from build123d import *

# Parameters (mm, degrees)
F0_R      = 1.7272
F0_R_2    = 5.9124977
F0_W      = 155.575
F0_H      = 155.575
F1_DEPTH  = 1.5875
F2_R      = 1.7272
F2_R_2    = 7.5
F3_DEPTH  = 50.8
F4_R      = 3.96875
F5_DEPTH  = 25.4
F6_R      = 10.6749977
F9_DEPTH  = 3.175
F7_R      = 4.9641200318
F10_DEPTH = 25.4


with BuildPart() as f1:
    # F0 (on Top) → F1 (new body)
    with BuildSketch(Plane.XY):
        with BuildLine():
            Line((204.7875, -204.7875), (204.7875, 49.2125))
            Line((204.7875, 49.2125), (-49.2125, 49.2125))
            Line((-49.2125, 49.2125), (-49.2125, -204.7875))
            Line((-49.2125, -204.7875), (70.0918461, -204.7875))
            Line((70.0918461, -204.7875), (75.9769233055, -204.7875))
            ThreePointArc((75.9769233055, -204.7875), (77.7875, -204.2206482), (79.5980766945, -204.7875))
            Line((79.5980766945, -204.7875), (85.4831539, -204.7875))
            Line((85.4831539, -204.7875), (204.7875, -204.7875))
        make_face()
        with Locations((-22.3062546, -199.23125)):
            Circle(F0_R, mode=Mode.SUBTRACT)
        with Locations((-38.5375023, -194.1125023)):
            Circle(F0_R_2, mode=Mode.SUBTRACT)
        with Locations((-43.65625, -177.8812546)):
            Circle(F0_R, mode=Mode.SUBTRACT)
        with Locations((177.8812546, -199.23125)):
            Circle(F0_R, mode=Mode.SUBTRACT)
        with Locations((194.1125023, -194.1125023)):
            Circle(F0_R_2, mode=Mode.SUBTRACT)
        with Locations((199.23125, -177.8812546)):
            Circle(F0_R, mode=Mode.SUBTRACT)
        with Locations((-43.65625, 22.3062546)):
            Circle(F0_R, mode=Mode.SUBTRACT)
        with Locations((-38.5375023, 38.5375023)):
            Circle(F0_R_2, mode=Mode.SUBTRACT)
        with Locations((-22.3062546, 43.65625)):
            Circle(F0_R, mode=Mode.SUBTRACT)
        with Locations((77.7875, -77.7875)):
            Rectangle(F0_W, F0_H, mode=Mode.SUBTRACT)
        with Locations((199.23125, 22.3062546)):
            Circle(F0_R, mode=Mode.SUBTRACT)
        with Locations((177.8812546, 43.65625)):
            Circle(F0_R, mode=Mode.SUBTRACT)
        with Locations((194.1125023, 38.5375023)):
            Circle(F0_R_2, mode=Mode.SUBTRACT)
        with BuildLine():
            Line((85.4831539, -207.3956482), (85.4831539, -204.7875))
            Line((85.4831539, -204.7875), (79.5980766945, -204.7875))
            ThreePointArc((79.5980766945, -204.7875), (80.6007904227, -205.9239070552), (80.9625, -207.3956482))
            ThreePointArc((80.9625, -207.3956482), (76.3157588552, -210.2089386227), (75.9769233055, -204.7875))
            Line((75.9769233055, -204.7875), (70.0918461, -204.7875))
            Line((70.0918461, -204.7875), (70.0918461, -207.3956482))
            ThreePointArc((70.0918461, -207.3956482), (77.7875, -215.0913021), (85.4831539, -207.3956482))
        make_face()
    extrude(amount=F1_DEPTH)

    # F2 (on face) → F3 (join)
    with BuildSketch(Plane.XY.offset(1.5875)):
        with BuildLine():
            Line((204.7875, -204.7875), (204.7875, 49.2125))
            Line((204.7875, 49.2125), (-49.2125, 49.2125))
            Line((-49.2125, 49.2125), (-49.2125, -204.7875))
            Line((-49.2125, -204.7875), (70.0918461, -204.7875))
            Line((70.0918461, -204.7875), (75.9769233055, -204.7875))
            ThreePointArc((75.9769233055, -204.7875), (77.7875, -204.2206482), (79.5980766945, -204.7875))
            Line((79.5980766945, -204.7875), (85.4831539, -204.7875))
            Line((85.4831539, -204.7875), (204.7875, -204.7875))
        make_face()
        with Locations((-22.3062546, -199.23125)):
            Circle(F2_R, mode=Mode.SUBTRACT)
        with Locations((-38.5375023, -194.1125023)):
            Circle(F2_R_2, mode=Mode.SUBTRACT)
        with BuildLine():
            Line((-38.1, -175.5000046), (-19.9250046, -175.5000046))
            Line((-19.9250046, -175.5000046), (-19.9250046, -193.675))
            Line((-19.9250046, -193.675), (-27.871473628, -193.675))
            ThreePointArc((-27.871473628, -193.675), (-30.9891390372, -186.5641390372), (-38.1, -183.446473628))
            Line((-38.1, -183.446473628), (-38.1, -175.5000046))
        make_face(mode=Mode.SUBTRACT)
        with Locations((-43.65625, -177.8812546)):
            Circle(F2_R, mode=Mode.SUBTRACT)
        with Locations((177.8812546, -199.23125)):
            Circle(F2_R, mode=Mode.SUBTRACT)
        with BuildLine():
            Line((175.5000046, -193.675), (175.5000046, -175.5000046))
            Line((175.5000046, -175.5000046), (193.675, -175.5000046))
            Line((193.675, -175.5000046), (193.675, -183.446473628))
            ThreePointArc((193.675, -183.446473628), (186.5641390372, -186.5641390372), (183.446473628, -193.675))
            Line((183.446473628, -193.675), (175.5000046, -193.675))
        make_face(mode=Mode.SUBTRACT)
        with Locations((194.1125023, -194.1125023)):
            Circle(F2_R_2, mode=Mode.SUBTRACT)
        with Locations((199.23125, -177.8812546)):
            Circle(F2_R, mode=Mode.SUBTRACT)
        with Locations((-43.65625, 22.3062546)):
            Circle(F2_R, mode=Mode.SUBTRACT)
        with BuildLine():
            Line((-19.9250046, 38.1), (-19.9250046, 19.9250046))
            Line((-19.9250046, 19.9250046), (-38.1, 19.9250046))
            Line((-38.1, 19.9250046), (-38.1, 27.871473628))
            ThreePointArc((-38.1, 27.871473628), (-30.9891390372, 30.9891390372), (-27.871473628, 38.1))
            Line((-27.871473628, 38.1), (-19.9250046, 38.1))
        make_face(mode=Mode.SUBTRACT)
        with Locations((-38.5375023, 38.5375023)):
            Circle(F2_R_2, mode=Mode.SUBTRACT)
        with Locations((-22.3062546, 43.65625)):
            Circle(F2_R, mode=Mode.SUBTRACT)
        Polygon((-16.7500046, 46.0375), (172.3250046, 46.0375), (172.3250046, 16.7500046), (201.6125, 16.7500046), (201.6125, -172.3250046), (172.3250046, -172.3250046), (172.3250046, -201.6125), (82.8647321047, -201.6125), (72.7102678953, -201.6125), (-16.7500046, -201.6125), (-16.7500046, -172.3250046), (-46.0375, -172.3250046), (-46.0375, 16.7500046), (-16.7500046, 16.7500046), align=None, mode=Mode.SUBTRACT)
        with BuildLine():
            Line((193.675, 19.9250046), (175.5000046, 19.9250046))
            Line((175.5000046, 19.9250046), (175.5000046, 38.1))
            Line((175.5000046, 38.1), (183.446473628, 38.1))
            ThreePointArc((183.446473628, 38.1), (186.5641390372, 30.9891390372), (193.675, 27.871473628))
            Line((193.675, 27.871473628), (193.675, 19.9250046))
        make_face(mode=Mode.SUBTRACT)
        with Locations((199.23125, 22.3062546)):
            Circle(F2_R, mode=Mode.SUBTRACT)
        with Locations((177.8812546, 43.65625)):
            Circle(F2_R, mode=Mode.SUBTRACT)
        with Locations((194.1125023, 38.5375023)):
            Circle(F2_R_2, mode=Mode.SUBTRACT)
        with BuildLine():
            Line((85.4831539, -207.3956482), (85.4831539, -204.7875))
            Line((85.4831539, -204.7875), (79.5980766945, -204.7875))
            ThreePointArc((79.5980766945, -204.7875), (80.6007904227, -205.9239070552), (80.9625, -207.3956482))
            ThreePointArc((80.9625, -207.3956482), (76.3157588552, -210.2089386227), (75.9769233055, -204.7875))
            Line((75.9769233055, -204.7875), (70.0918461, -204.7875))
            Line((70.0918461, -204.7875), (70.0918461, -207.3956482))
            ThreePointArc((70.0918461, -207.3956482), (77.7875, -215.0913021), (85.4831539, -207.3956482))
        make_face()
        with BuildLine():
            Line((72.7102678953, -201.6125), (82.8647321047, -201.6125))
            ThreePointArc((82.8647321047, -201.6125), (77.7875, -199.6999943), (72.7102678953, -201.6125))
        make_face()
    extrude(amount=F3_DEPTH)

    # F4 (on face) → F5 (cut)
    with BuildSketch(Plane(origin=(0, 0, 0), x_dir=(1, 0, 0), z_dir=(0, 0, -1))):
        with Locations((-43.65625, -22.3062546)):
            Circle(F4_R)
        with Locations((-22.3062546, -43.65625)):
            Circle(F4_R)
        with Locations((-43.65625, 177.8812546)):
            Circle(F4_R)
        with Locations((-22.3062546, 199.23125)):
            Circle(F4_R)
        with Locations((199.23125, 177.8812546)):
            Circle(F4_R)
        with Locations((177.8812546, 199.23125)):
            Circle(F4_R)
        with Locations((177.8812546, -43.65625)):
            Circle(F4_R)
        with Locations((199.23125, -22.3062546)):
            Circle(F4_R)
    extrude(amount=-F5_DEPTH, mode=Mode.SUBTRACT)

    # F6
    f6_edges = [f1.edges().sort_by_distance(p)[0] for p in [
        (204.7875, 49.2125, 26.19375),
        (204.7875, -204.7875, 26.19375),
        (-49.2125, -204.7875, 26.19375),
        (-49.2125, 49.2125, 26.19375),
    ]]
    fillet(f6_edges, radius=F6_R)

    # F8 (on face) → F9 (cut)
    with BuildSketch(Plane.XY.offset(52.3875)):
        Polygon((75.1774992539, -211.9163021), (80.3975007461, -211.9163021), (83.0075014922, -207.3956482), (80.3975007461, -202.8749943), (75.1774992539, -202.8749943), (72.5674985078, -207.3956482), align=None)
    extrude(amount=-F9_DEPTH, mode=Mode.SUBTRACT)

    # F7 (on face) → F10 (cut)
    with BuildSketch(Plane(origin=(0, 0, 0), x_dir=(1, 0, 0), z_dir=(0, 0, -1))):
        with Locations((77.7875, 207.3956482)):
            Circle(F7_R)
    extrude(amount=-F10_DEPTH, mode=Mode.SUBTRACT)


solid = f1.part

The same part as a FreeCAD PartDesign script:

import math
import FreeCAD as App
import Part
import Sketcher
Q = App.Units.Quantity


def edges_at(feature, points):
    """Names of the edges that pass closest to the given points."""
    edges = feature.Shape.Edges
    near = lambda p: min(range(len(edges)), key=lambda i: edges[i].distToShape(Part.Vertex(*p))[0])
    return sorted({f"Edge{near(p) + 1}" for p in points})

doc = App.newDocument("Part")
body = doc.addObject("PartDesign::Body", "Body")

# Sketch on XY plane
sketch1 = doc.addObject("Sketcher::SketchObject", "Sketch")
body.addObject(sketch1)
sketch1.AttachmentSupport = (doc.XY_Plane, [""])
sketch1.MapMode = "FlatFace"
sketch1.addGeometry(Part.LineSegment(App.Vector(204.7875, -204.7875, 0), App.Vector(204.7875, 49.2125, 0)), False)
sketch1.addGeometry(Part.LineSegment(App.Vector(204.7875, 49.2125, 0), App.Vector(-49.2125, 49.2125, 0)), False)
sketch1.addGeometry(Part.LineSegment(App.Vector(-49.2125, 49.2125, 0), App.Vector(-49.2125, -204.7875, 0)), False)
sketch1.addGeometry(Part.LineSegment(App.Vector(-49.2125, -204.7875, 0), App.Vector(70.091846, -204.7875, 0)), False)
sketch1.addGeometry(Part.LineSegment(App.Vector(70.091846, -204.7875, 0), App.Vector(70.091846, -207.395648, 0)), False)
sketch1.addGeometry(Part.ArcOfCircle(Part.Circle(App.Vector(77.7875, -207.395648, 0), App.Vector(0, 0, 1), 7.695654), math.radians(180), math.radians(360)), False)
sketch1.addGeometry(Part.LineSegment(App.Vector(85.483154, -207.395648, 0), App.Vector(85.483154, -204.7875, 0)), False)
sketch1.addGeometry(Part.LineSegment(App.Vector(85.483154, -204.7875, 0), App.Vector(204.7875, -204.7875, 0)), False)
sketch1.addGeometry(Part.ArcOfCircle(Part.Circle(App.Vector(77.7875, -207.395648, 0), App.Vector(0, 0, 1), 3.175), math.radians(55.231615), math.radians(124.768385)), False)
sketch1.addGeometry(Part.ArcOfCircle(Part.Circle(App.Vector(77.7875, -207.395648, 0), App.Vector(0, 0, 1), 3.175), math.radians(0), math.radians(55.231615)), False)
sketch1.addGeometry(Part.ArcOfCircle(Part.Circle(App.Vector(77.7875, -207.395648, 0), App.Vector(0, 0, 1), 3.175), math.radians(124.768385), math.radians(360)), False)
sketch1.addGeometry(Part.Circle(App.Vector(-38.537502, -194.112502, 0), App.Vector(0, 0, 1), 5.912498), False)
sketch1.addGeometry(Part.Circle(App.Vector(-22.306255, -199.23125, 0), App.Vector(0, 0, 1), 1.7272), False)
sketch1.addGeometry(Part.Circle(App.Vector(-43.65625, -177.881255, 0), App.Vector(0, 0, 1), 1.7272), False)
sketch1.addGeometry(Part.Circle(App.Vector(177.881255, -199.23125, 0), App.Vector(0, 0, 1), 1.7272), False)
sketch1.addGeometry(Part.Circle(App.Vector(194.112502, -194.112502, 0), App.Vector(0, 0, 1), 5.912498), False)
sketch1.addGeometry(Part.Circle(App.Vector(199.23125, -177.881255, 0), App.Vector(0, 0, 1), 1.7272), False)
sketch1.addGeometry(Part.LineSegment(App.Vector(155.575, -155.575, 0), App.Vector(0, -155.575, 0)), False)
sketch1.addGeometry(Part.LineSegment(App.Vector(0, -155.575, 0), App.Vector(0, 0, 0)), False)
sketch1.addGeometry(Part.LineSegment(App.Vector(0, 0, 0), App.Vector(155.575, 0, 0)), False)
sketch1.addGeometry(Part.LineSegment(App.Vector(155.575, 0, 0), App.Vector(155.575, -155.575, 0)), False)
sketch1.addGeometry(Part.Circle(App.Vector(-43.65625, 22.306255, 0), App.Vector(0, 0, 1), 1.7272), False)
sketch1.addGeometry(Part.Circle(App.Vector(-38.537502, 38.537502, 0), App.Vector(0, 0, 1), 5.912498), False)
sketch1.addGeometry(Part.Circle(App.Vector(-22.306255, 43.65625, 0), App.Vector(0, 0, 1), 1.7272), False)
sketch1.addGeometry(Part.Circle(App.Vector(199.23125, 22.306255, 0), App.Vector(0, 0, 1), 1.7272), False)
sketch1.addGeometry(Part.Circle(App.Vector(177.881255, 43.65625, 0), App.Vector(0, 0, 1), 1.7272), False)
sketch1.addGeometry(Part.Circle(App.Vector(194.112502, 38.537502, 0), App.Vector(0, 0, 1), 5.912498), False)
sketch1.addConstraint(Sketcher.Constraint("Coincident", 0, 2, 1, 1))
sketch1.addConstraint(Sketcher.Constraint("Coincident", 1, 2, 2, 1))
sketch1.addConstraint(Sketcher.Constraint("Coincident", 2, 2, 3, 1))
sketch1.addConstraint(Sketcher.Constraint("Coincident", 3, 2, 4, 1))
sketch1.addConstraint(Sketcher.Constraint("Tangent", 4, 2, 5, 1))
sketch1.addConstraint(Sketcher.Constraint("Tangent", 5, 2, 6, 1))
sketch1.addConstraint(Sketcher.Constraint("Coincident", 6, 2, 7, 1))
sketch1.addConstraint(Sketcher.Constraint("Coincident", 7, 2, 0, 1))
sketch1.addConstraint(Sketcher.Constraint("Tangent", 8, 1, 9, 2))
sketch1.addConstraint(Sketcher.Constraint("Tangent", 9, 1, 10, 2))
sketch1.addConstraint(Sketcher.Constraint("Tangent", 10, 1, 8, 2))
sketch1.addConstraint(Sketcher.Constraint("Coincident", 17, 2, 18, 1))
sketch1.addConstraint(Sketcher.Constraint("Coincident", 18, 2, 19, 1))
sketch1.addConstraint(Sketcher.Constraint("Coincident", 19, 2, 20, 1))
sketch1.addConstraint(Sketcher.Constraint("Coincident", 20, 2, 17, 1))
sketch1.addConstraint(Sketcher.Constraint("Vertical", 0))
sketch1.addConstraint(Sketcher.Constraint("Horizontal", 1))
sketch1.addConstraint(Sketcher.Constraint("Vertical", 2))
sketch1.addConstraint(Sketcher.Constraint("Horizontal", 3))
sketch1.addConstraint(Sketcher.Constraint("Vertical", 4))
sketch1.addConstraint(Sketcher.Constraint("Vertical", 6))
sketch1.addConstraint(Sketcher.Constraint("Horizontal", 7))
sketch1.addConstraint(Sketcher.Constraint("Horizontal", 17))
sketch1.addConstraint(Sketcher.Constraint("Vertical", 18))
sketch1.addConstraint(Sketcher.Constraint("Horizontal", 19))
sketch1.addConstraint(Sketcher.Constraint("Vertical", 20))
sketch1.addConstraint(Sketcher.Constraint("Coincident", 18, 2, -1, 1))
sketch1.addConstraint(Sketcher.Constraint("Coincident", 8, 3, 5, 3))
sketch1.addConstraint(Sketcher.Constraint("Equal", 12, 13))
sketch1.addConstraint(Sketcher.Constraint("Equal", 13, 14))
sketch1.addConstraint(Sketcher.Constraint("Equal", 11, 15))
sketch1.addConstraint(Sketcher.Constraint("Equal", 14, 16))
sketch1.addConstraint(Sketcher.Constraint("Equal", 16, 21))
sketch1.addConstraint(Sketcher.Constraint("Equal", 15, 22))
sketch1.addConstraint(Sketcher.Constraint("Equal", 21, 23))
sketch1.addConstraint(Sketcher.Constraint("Equal", 23, 24))
sketch1.addConstraint(Sketcher.Constraint("Equal", 24, 25))
sketch1.addConstraint(Sketcher.Constraint("Equal", 22, 26))
sketch1.addConstraint(Sketcher.Constraint("Horizontal", 12, 3, 14, 3))
sketch1.addConstraint(Sketcher.Constraint("Horizontal", 11, 3, 15, 3))
sketch1.addConstraint(Sketcher.Constraint("Horizontal", 13, 3, 16, 3))
sketch1.addConstraint(Sketcher.Constraint("Horizontal", 21, 3, 24, 3))
sketch1.addConstraint(Sketcher.Constraint("Horizontal", 23, 3, 25, 3))
sketch1.addConstraint(Sketcher.Constraint("Horizontal", 22, 3, 26, 3))
sketch1.addConstraint(Sketcher.Constraint("Horizontal", 3, 2, 6, 2))
sketch1.addConstraint(Sketcher.Constraint("Horizontal", 7, 2, 8, 1))
sketch1.addConstraint(Sketcher.Constraint("Horizontal", 5, 2, 9, 1))
sketch1.addConstraint(Sketcher.Constraint("Horizontal", 8, 1, 10, 1))
sketch1.addConstraint(Sketcher.Constraint("Vertical", 13, 3, 21, 3))
sketch1.addConstraint(Sketcher.Constraint("Vertical", 11, 3, 22, 3))
sketch1.addConstraint(Sketcher.Constraint("Vertical", 12, 3, 23, 3))
sketch1.addConstraint(Sketcher.Constraint("Vertical", 16, 3, 24, 3))
sketch1.addConstraint(Sketcher.Constraint("Vertical", 14, 3, 25, 3))
sketch1.addConstraint(Sketcher.Constraint("Vertical", 15, 3, 26, 3))
sketch1.addConstraint(Sketcher.Constraint("Equal", 3, 7))
sketch1.addConstraint(Sketcher.Constraint("Equal", 1, 0))
sketch1.addConstraint(Sketcher.Constraint("Equal", 19, 18))
sketch1.addConstraint(Sketcher.Constraint("DistanceX", 1, 2, 1, 1, Q("10 in")))
sketch1.addConstraint(Sketcher.Constraint("Diameter", 12, Q("0.136 in")))
sketch1.addConstraint(Sketcher.Constraint("Radius", 8, Q("0.125 in")))
sketch1.addConstraint(Sketcher.Constraint("DistanceX", 17, 2, 17, 1, Q("6.125 in")))
sketch1.addConstraint(Sketcher.Constraint("DistanceX", -1, 1, 5, 3, Q("3.0625 in")))
sketch1.addConstraint(Sketcher.Constraint("DistanceY", 12, 3, -1, 1, Q("7.84375 in")))
sketch1.addConstraint(Sketcher.Constraint("DistanceX", 13, 3, -1, 1, Q("1.71875 in")))
sketch1.addConstraint(Sketcher.Constraint("DistanceX", -1, 1, 16, 3, Q("7.84375 in")))
sketch1.addConstraint(Sketcher.Constraint("DistanceY", -1, 1, 23, 3, Q("1.71875 in")))
sketch1.addConstraint(Sketcher.Constraint("DistanceY", -1, 1, 0, 2, Q("1.9375 in")))
sketch1.addConstraint(Sketcher.Constraint("Diameter", 11, 11.824995))
sketch1.addConstraint(Sketcher.Constraint("Radius", 5, 7.695654))
sketch1.addConstraint(Sketcher.Constraint("DistanceY", 4, 2, 4, 1, 2.608148))
sketch1.addConstraint(Sketcher.Constraint("DistanceX", 12, 3, 3, 2, 92.398101))
sketch1.addConstraint(Sketcher.Constraint("DistanceX", 12, 3, 14, 3, 200.187509))
sketch1.addConstraint(Sketcher.Constraint("DistanceY", 13, 3, 21, 3, 200.187509))
sketch1.addConstraint(Sketcher.Constraint("DistanceY", 5, 3, 22, 3, 245.933151))
sketch1.addConstraint(Sketcher.Constraint("DistanceX", 11, 3, -1, 1, 38.537502))
sketch1.addConstraint(Sketcher.Constraint("DistanceY", 11, 3, -1, 1, 194.112502))
sketch1.addConstraint(Sketcher.Constraint("DistanceY", 13, 3, -1, 1, 177.881255))
sketch1.addConstraint(Sketcher.Constraint("DistanceX", -1, 1, 15, 3, 194.112502))
pad1 = doc.addObject("PartDesign::Pad", "Pad")
body.addObject(pad1)
pad1.Profile = sketch1
pad1.Length = Q("0.0625 in")

# Sketch on XY plane
sketch2 = doc.addObject("Sketcher::SketchObject", "Sketch001")
body.addObject(sketch2)
sketch2.AttachmentSupport = (doc.XY_Plane, [""])
sketch2.MapMode = "FlatFace"
sketch2.AttachmentOffset = App.Placement(App.Vector(0, 0, 0.0625 * 25.4), App.Rotation())
sketch2.addGeometry(Part.LineSegment(App.Vector(204.7875, -204.7875, 0), App.Vector(204.7875, 49.2125, 0)), False)
sketch2.addGeometry(Part.LineSegment(App.Vector(204.7875, 49.2125, 0), App.Vector(-49.2125, 49.2125, 0)), False)
sketch2.addGeometry(Part.LineSegment(App.Vector(-49.2125, 49.2125, 0), App.Vector(-49.2125, -204.7875, 0)), False)
sketch2.addGeometry(Part.LineSegment(App.Vector(-49.2125, -204.7875, 0), App.Vector(70.091846, -204.7875, 0)), False)
sketch2.addGeometry(Part.LineSegment(App.Vector(70.091846, -204.7875, 0), App.Vector(70.091846, -207.395648, 0)), False)
sketch2.addGeometry(Part.ArcOfCircle(Part.Circle(App.Vector(77.7875, -207.395648, 0), App.Vector(0, 0, 1), 7.695654), math.radians(180), math.radians(360)), False)
sketch2.addGeometry(Part.LineSegment(App.Vector(85.483154, -207.395648, 0), App.Vector(85.483154, -204.7875, 0)), False)
sketch2.addGeometry(Part.LineSegment(App.Vector(85.483154, -204.7875, 0), App.Vector(204.7875, -204.7875, 0)), False)
sketch2.addGeometry(Part.ArcOfCircle(Part.Circle(App.Vector(77.7875, -207.395648, 0), App.Vector(0, 0, 1), 3.175), math.radians(55.231615), math.radians(124.768385)), False)
sketch2.addGeometry(Part.ArcOfCircle(Part.Circle(App.Vector(77.7875, -207.395648, 0), App.Vector(0, 0, 1), 3.175), math.radians(0), math.radians(55.231615)), False)
sketch2.addGeometry(Part.ArcOfCircle(Part.Circle(App.Vector(77.7875, -207.395648, 0), App.Vector(0, 0, 1), 3.175), math.radians(124.768385), math.radians(360)), False)
sketch2.addGeometry(Part.Circle(App.Vector(-38.537502, -194.112502, 0), App.Vector(0, 0, 1), 7.5), False)
sketch2.addGeometry(Part.Circle(App.Vector(-22.306255, -199.23125, 0), App.Vector(0, 0, 1), 1.7272), False)
sketch2.addGeometry(Part.Circle(App.Vector(-43.65625, -177.881255, 0), App.Vector(0, 0, 1), 1.7272), False)
sketch2.addGeometry(Part.LineSegment(App.Vector(-38.1, -183.446474, 0), App.Vector(-38.1, -175.500005, 0)), False)
sketch2.addGeometry(Part.LineSegment(App.Vector(-38.1, -175.500005, 0), App.Vector(-19.925005, -175.500005, 0)), False)
sketch2.addGeometry(Part.LineSegment(App.Vector(-19.925005, -175.500005, 0), App.Vector(-19.925005, -193.675, 0)), False)
sketch2.addGeometry(Part.LineSegment(App.Vector(-19.925005, -193.675, 0), App.Vector(-27.871474, -193.675, 0)), False)
sketch2.addGeometry(Part.ArcOfCircle(Part.Circle(App.Vector(-38.537502, -194.112502, 0), App.Vector(0, 0, 1), 10.674998), math.radians(2.348858), math.radians(87.651142)), False)
sketch2.addGeometry(Part.LineSegment(App.Vector(-16.750005, 16.750005, 0), App.Vector(-16.750005, 46.0375, 0)), False)
sketch2.addGeometry(Part.LineSegment(App.Vector(-16.750005, 46.0375, 0), App.Vector(172.325005, 46.0375, 0)), False)
sketch2.addGeometry(Part.LineSegment(App.Vector(172.325005, 46.0375, 0), App.Vector(172.325005, 16.750005, 0)), False)
sketch2.addGeometry(Part.LineSegment(App.Vector(172.325005, 16.750005, 0), App.Vector(201.6125, 16.750005, 0)), False)
sketch2.addGeometry(Part.LineSegment(App.Vector(201.6125, 16.750005, 0), App.Vector(201.6125, -172.325005, 0)), False)
sketch2.addGeometry(Part.LineSegment(App.Vector(201.6125, -172.325005, 0), App.Vector(172.325005, -172.325005, 0)), False)
sketch2.addGeometry(Part.LineSegment(App.Vector(172.325005, -172.325005, 0), App.Vector(172.325005, -201.6125, 0)), False)
sketch2.addGeometry(Part.LineSegment(App.Vector(172.325005, -201.6125, 0), App.Vector(82.864732, -201.6125, 0)), False)
sketch2.addGeometry(Part.ArcOfCircle(Part.Circle(App.Vector(77.7875, -207.395648, 0), App.Vector(0, 0, 1), 7.695654), math.radians(48.718949), math.radians(131.281051)), False)
sketch2.addGeometry(Part.LineSegment(App.Vector(72.710268, -201.6125, 0), App.Vector(-16.750005, -201.6125, 0)), False)
sketch2.addGeometry(Part.LineSegment(App.Vector(-16.750005, -201.6125, 0), App.Vector(-16.750005, -172.325005, 0)), False)
sketch2.addGeometry(Part.LineSegment(App.Vector(-16.750005, -172.325005, 0), App.Vector(-46.0375, -172.325005, 0)), False)
sketch2.addGeometry(Part.LineSegment(App.Vector(-46.0375, -172.325005, 0), App.Vector(-46.0375, 16.750005, 0)), False)
sketch2.addGeometry(Part.LineSegment(App.Vector(-46.0375, 16.750005, 0), App.Vector(-16.750005, 16.750005, 0)), False)
sketch2.addGeometry(Part.Circle(App.Vector(177.881255, -199.23125, 0), App.Vector(0, 0, 1), 1.7272), False)
sketch2.addGeometry(Part.Circle(App.Vector(194.112502, -194.112502, 0), App.Vector(0, 0, 1), 7.5), False)
sketch2.addGeometry(Part.LineSegment(App.Vector(183.446474, -193.675, 0), App.Vector(175.500005, -193.675, 0)), False)
sketch2.addGeometry(Part.LineSegment(App.Vector(175.500005, -193.675, 0), App.Vector(175.500005, -175.500005, 0)), False)
sketch2.addGeometry(Part.LineSegment(App.Vector(175.500005, -175.500005, 0), App.Vector(193.675, -175.500005, 0)), False)
sketch2.addGeometry(Part.LineSegment(App.Vector(193.675, -175.500005, 0), App.Vector(193.675, -183.446474, 0)), False)
sketch2.addGeometry(Part.ArcOfCircle(Part.Circle(App.Vector(194.112502, -194.112502, 0), App.Vector(0, 0, 1), 10.674998), math.radians(92.348858), math.radians(177.651142)), False)
sketch2.addGeometry(Part.Circle(App.Vector(199.23125, -177.881255, 0), App.Vector(0, 0, 1), 1.7272), False)
sketch2.addGeometry(Part.Circle(App.Vector(-43.65625, 22.306255, 0), App.Vector(0, 0, 1), 1.7272), False)
sketch2.addGeometry(Part.LineSegment(App.Vector(-27.871474, 38.1, 0), App.Vector(-19.925005, 38.1, 0)), False)
sketch2.addGeometry(Part.LineSegment(App.Vector(-19.925005, 38.1, 0), App.Vector(-19.925005, 19.925005, 0)), False)
sketch2.addGeometry(Part.LineSegment(App.Vector(-19.925005, 19.925005, 0), App.Vector(-38.1, 19.925005, 0)), False)
sketch2.addGeometry(Part.LineSegment(App.Vector(-38.1, 19.925005, 0), App.Vector(-38.1, 27.871474, 0)), False)
sketch2.addGeometry(Part.ArcOfCircle(Part.Circle(App.Vector(-38.537502, 38.537502, 0), App.Vector(0, 0, 1), 10.674998), math.radians(-87.651142), math.radians(-2.348858)), False)
sketch2.addGeometry(Part.Circle(App.Vector(-38.537502, 38.537502, 0), App.Vector(0, 0, 1), 7.5), False)
sketch2.addGeometry(Part.Circle(App.Vector(-22.306255, 43.65625, 0), App.Vector(0, 0, 1), 1.7272), False)
sketch2.addGeometry(Part.LineSegment(App.Vector(193.675, 27.871474, 0), App.Vector(193.675, 19.925005, 0)), False)
sketch2.addGeometry(Part.LineSegment(App.Vector(193.675, 19.925005, 0), App.Vector(175.500005, 19.925005, 0)), False)
sketch2.addGeometry(Part.LineSegment(App.Vector(175.500005, 19.925005, 0), App.Vector(175.500005, 38.1, 0)), False)
sketch2.addGeometry(Part.LineSegment(App.Vector(175.500005, 38.1, 0), App.Vector(183.446474, 38.1, 0)), False)
sketch2.addGeometry(Part.ArcOfCircle(Part.Circle(App.Vector(194.112502, 38.537502, 0), App.Vector(0, 0, 1), 10.674998), math.radians(-177.651142), math.radians(-92.348858)), False)
sketch2.addGeometry(Part.Circle(App.Vector(199.23125, 22.306255, 0), App.Vector(0, 0, 1), 1.7272), False)
sketch2.addGeometry(Part.Circle(App.Vector(177.881255, 43.65625, 0), App.Vector(0, 0, 1), 1.7272), False)
sketch2.addGeometry(Part.Circle(App.Vector(194.112502, 38.537502, 0), App.Vector(0, 0, 1), 7.5), False)
sketch2.addConstraint(Sketcher.Constraint("Coincident", 0, 2, 1, 1))
sketch2.addConstraint(Sketcher.Constraint("Coincident", 1, 2, 2, 1))
sketch2.addConstraint(Sketcher.Constraint("Coincident", 2, 2, 3, 1))
sketch2.addConstraint(Sketcher.Constraint("Coincident", 3, 2, 4, 1))
sketch2.addConstraint(Sketcher.Constraint("Tangent", 4, 2, 5, 1))
sketch2.addConstraint(Sketcher.Constraint("Tangent", 5, 2, 6, 1))
sketch2.addConstraint(Sketcher.Constraint("Coincident", 6, 2, 7, 1))
sketch2.addConstraint(Sketcher.Constraint("Coincident", 7, 2, 0, 1))
sketch2.addConstraint(Sketcher.Constraint("Tangent", 8, 1, 9, 2))
sketch2.addConstraint(Sketcher.Constraint("Tangent", 9, 1, 10, 2))
sketch2.addConstraint(Sketcher.Constraint("Tangent", 10, 1, 8, 2))
sketch2.addConstraint(Sketcher.Constraint("Coincident", 14, 2, 15, 1))
sketch2.addConstraint(Sketcher.Constraint("Coincident", 15, 2, 16, 1))
sketch2.addConstraint(Sketcher.Constraint("Coincident", 16, 2, 17, 1))
sketch2.addConstraint(Sketcher.Constraint("Coincident", 17, 2, 18, 1))
sketch2.addConstraint(Sketcher.Constraint("Coincident", 18, 2, 14, 1))
sketch2.addConstraint(Sketcher.Constraint("Coincident", 19, 2, 20, 1))
sketch2.addConstraint(Sketcher.Constraint("Coincident", 20, 2, 21, 1))
sketch2.addConstraint(Sketcher.Constraint("Coincident", 21, 2, 22, 1))
sketch2.addConstraint(Sketcher.Constraint("Coincident", 22, 2, 23, 1))
sketch2.addConstraint(Sketcher.Constraint("Coincident", 23, 2, 24, 1))
sketch2.addConstraint(Sketcher.Constraint("Coincident", 24, 2, 25, 1))
sketch2.addConstraint(Sketcher.Constraint("Coincident", 25, 2, 26, 1))
sketch2.addConstraint(Sketcher.Constraint("Coincident", 26, 2, 27, 1))
sketch2.addConstraint(Sketcher.Constraint("Coincident", 27, 2, 28, 1))
sketch2.addConstraint(Sketcher.Constraint("Coincident", 28, 2, 29, 1))
sketch2.addConstraint(Sketcher.Constraint("Coincident", 29, 2, 30, 1))
sketch2.addConstraint(Sketcher.Constraint("Coincident", 30, 2, 31, 1))
sketch2.addConstraint(Sketcher.Constraint("Coincident", 31, 2, 32, 1))
sketch2.addConstraint(Sketcher.Constraint("Coincident", 32, 2, 19, 1))
sketch2.addConstraint(Sketcher.Constraint("Coincident", 35, 2, 36, 1))
sketch2.addConstraint(Sketcher.Constraint("Coincident", 36, 2, 37, 1))
sketch2.addConstraint(Sketcher.Constraint("Coincident", 37, 2, 38, 1))
sketch2.addConstraint(Sketcher.Constraint("Coincident", 38, 2, 39, 1))
sketch2.addConstraint(Sketcher.Constraint("Coincident", 39, 2, 35, 1))
sketch2.addConstraint(Sketcher.Constraint("Coincident", 42, 2, 43, 1))
sketch2.addConstraint(Sketcher.Constraint("Coincident", 43, 2, 44, 1))
sketch2.addConstraint(Sketcher.Constraint("Coincident", 44, 2, 45, 1))
sketch2.addConstraint(Sketcher.Constraint("Coincident", 45, 2, 46, 1))
sketch2.addConstraint(Sketcher.Constraint("Coincident", 46, 2, 42, 1))
sketch2.addConstraint(Sketcher.Constraint("Coincident", 49, 2, 50, 1))
sketch2.addConstraint(Sketcher.Constraint("Coincident", 50, 2, 51, 1))
sketch2.addConstraint(Sketcher.Constraint("Coincident", 51, 2, 52, 1))
sketch2.addConstraint(Sketcher.Constraint("Coincident", 52, 2, 53, 1))
sketch2.addConstraint(Sketcher.Constraint("Coincident", 53, 2, 49, 1))
sketch2.addConstraint(Sketcher.Constraint("Vertical", 0))
sketch2.addConstraint(Sketcher.Constraint("Horizontal", 1))
sketch2.addConstraint(Sketcher.Constraint("Vertical", 2))
sketch2.addConstraint(Sketcher.Constraint("Horizontal", 3))
sketch2.addConstraint(Sketcher.Constraint("Vertical", 4))
sketch2.addConstraint(Sketcher.Constraint("Vertical", 6))
sketch2.addConstraint(Sketcher.Constraint("Horizontal", 7))
sketch2.addConstraint(Sketcher.Constraint("Vertical", 14))
sketch2.addConstraint(Sketcher.Constraint("Horizontal", 15))
sketch2.addConstraint(Sketcher.Constraint("Vertical", 16))
sketch2.addConstraint(Sketcher.Constraint("Horizontal", 17))
sketch2.addConstraint(Sketcher.Constraint("Vertical", 19))
sketch2.addConstraint(Sketcher.Constraint("Horizontal", 20))
sketch2.addConstraint(Sketcher.Constraint("Vertical", 21))
sketch2.addConstraint(Sketcher.Constraint("Horizontal", 22))
sketch2.addConstraint(Sketcher.Constraint("Vertical", 23))
sketch2.addConstraint(Sketcher.Constraint("Horizontal", 24))
sketch2.addConstraint(Sketcher.Constraint("Vertical", 25))
sketch2.addConstraint(Sketcher.Constraint("Horizontal", 26))
sketch2.addConstraint(Sketcher.Constraint("Horizontal", 28))
sketch2.addConstraint(Sketcher.Constraint("Vertical", 29))
sketch2.addConstraint(Sketcher.Constraint("Horizontal", 30))
sketch2.addConstraint(Sketcher.Constraint("Vertical", 31))
sketch2.addConstraint(Sketcher.Constraint("Horizontal", 32))
sketch2.addConstraint(Sketcher.Constraint("Horizontal", 35))
sketch2.addConstraint(Sketcher.Constraint("Vertical", 36))
sketch2.addConstraint(Sketcher.Constraint("Horizontal", 37))
sketch2.addConstraint(Sketcher.Constraint("Vertical", 38))
sketch2.addConstraint(Sketcher.Constraint("Horizontal", 42))
sketch2.addConstraint(Sketcher.Constraint("Vertical", 43))
sketch2.addConstraint(Sketcher.Constraint("Horizontal", 44))
sketch2.addConstraint(Sketcher.Constraint("Vertical", 45))
sketch2.addConstraint(Sketcher.Constraint("Vertical", 49))
sketch2.addConstraint(Sketcher.Constraint("Horizontal", 50))
sketch2.addConstraint(Sketcher.Constraint("Vertical", 51))
sketch2.addConstraint(Sketcher.Constraint("Horizontal", 52))
sketch2.addConstraint(Sketcher.Constraint("Coincident", 8, 3, 5, 3))
sketch2.addConstraint(Sketcher.Constraint("Coincident", 18, 3, 11, 3))
sketch2.addConstraint(Sketcher.Constraint("Coincident", 27, 3, 5, 3))
sketch2.addConstraint(Sketcher.Constraint("Coincident", 39, 3, 34, 3))
sketch2.addConstraint(Sketcher.Constraint("Coincident", 47, 3, 46, 3))
sketch2.addConstraint(Sketcher.Constraint("Coincident", 56, 3, 53, 3))
sketch2.addConstraint(Sketcher.Constraint("Equal", 12, 13))
sketch2.addConstraint(Sketcher.Constraint("Equal", 5, 27))
sketch2.addConstraint(Sketcher.Constraint("Equal", 13, 33))
sketch2.addConstraint(Sketcher.Constraint("Equal", 11, 34))
sketch2.addConstraint(Sketcher.Constraint("Equal", 18, 39))
sketch2.addConstraint(Sketcher.Constraint("Equal", 33, 40))
sketch2.addConstraint(Sketcher.Constraint("Equal", 40, 41))
sketch2.addConstraint(Sketcher.Constraint("Equal", 39, 46))
sketch2.addConstraint(Sketcher.Constraint("Equal", 34, 47))
sketch2.addConstraint(Sketcher.Constraint("Equal", 41, 48))
sketch2.addConstraint(Sketcher.Constraint("Equal", 46, 53))
sketch2.addConstraint(Sketcher.Constraint("Equal", 48, 54))
sketch2.addConstraint(Sketcher.Constraint("Equal", 54, 55))
sketch2.addConstraint(Sketcher.Constraint("Equal", 47, 56))
sketch2.addConstraint(Sketcher.Constraint("Horizontal", 12, 3, 33, 3))
sketch2.addConstraint(Sketcher.Constraint("Horizontal", 18, 3, 34, 3))
sketch2.addConstraint(Sketcher.Constraint("Horizontal", 13, 3, 40, 3))
sketch2.addConstraint(Sketcher.Constraint("Horizontal", 47, 3, 53, 3))
sketch2.addConstraint(Sketcher.Constraint("Horizontal", 41, 3, 54, 3))
sketch2.addConstraint(Sketcher.Constraint("Horizontal", 48, 3, 55, 3))
sketch2.addConstraint(Sketcher.Constraint("Horizontal", 3, 2, 6, 2))
sketch2.addConstraint(Sketcher.Constraint("Horizontal", 7, 2, 8, 1))
sketch2.addConstraint(Sketcher.Constraint("Horizontal", 5, 2, 9, 1))
sketch2.addConstraint(Sketcher.Constraint("Horizontal", 8, 1, 10, 1))
sketch2.addConstraint(Sketcher.Constraint("Horizontal", 26, 2, 27, 2))
sketch2.addConstraint(Sketcher.Constraint("Horizontal", 24, 2, 29, 2))
sketch2.addConstraint(Sketcher.Constraint("Horizontal", 22, 2, 31, 2))
sketch2.addConstraint(Sketcher.Constraint("Horizontal", 17, 2, 35, 2))
sketch2.addConstraint(Sketcher.Constraint("Horizontal", 15, 2, 36, 2))
sketch2.addConstraint(Sketcher.Constraint("Horizontal", 18, 2, 38, 2))
sketch2.addConstraint(Sketcher.Constraint("Horizontal", 44, 2, 49, 2))
sketch2.addConstraint(Sketcher.Constraint("Horizontal", 46, 2, 51, 2))
sketch2.addConstraint(Sketcher.Constraint("Horizontal", 45, 2, 53, 2))
sketch2.addConstraint(Sketcher.Constraint("Vertical", 13, 3, 41, 3))
sketch2.addConstraint(Sketcher.Constraint("Vertical", 18, 3, 46, 3))
sketch2.addConstraint(Sketcher.Constraint("Vertical", 12, 3, 48, 3))
sketch2.addConstraint(Sketcher.Constraint("Vertical", 39, 3, 53, 3))
sketch2.addConstraint(Sketcher.Constraint("Vertical", 40, 3, 54, 3))
sketch2.addConstraint(Sketcher.Constraint("Vertical", 33, 3, 55, 3))
sketch2.addConstraint(Sketcher.Constraint("Vertical", 21, 2, 24, 2))
sketch2.addConstraint(Sketcher.Constraint("Vertical", 19, 2, 28, 2))
sketch2.addConstraint(Sketcher.Constraint("Vertical", 16, 2, 42, 2))
sketch2.addConstraint(Sketcher.Constraint("Vertical", 18, 2, 44, 2))
sketch2.addConstraint(Sketcher.Constraint("Vertical", 17, 2, 46, 2))
sketch2.addConstraint(Sketcher.Constraint("Vertical", 36, 2, 50, 2))
sketch2.addConstraint(Sketcher.Constraint("Equal", 3, 7))
sketch2.addConstraint(Sketcher.Constraint("Equal", 26, 28))
sketch2.addConstraint(Sketcher.Constraint("Equal", 24, 30))
sketch2.addConstraint(Sketcher.Constraint("Equal", 17, 35))
sketch2.addConstraint(Sketcher.Constraint("Equal", 1, 0))
sketch2.addConstraint(Sketcher.Constraint("Equal", 52, 14))
sketch2.addConstraint(Sketcher.Constraint("Equal", 50, 16))
sketch2.addConstraint(Sketcher.Constraint("Equal", 32, 19))
sketch2.addConstraint(Sketcher.Constraint("Equal", 20, 23))
sketch2.addConstraint(Sketcher.Constraint("Equal", 21, 25))
sketch2.addConstraint(Sketcher.Constraint("Equal", 36, 43))
sketch2.addConstraint(Sketcher.Constraint("DistanceX", 1, 2, 1, 1, Q("10 in")))
sketch2.addConstraint(Sketcher.Constraint("Diameter", 12, Q("0.136 in")))
sketch2.addConstraint(Sketcher.Constraint("Radius", 8, Q("0.125 in")))
sketch2.addConstraint(Sketcher.Constraint("DistanceX", 14, 2, -1, 1, Q("1.5 in")))
sketch2.addConstraint(Sketcher.Constraint("DistanceY", -1, 1, 42, 2, Q("1.5 in")))
sketch2.addConstraint(Sketcher.Constraint("Diameter", 11, 15.0))
sketch2.addConstraint(Sketcher.Constraint("DistanceX", -1, 1, 5, 3, Q("3.0625 in")))
sketch2.addConstraint(Sketcher.Constraint("DistanceY", 12, 3, -1, 1, Q("7.84375 in")))
sketch2.addConstraint(Sketcher.Constraint("DistanceX", 13, 3, -1, 1, Q("1.71875 in")))
sketch2.addConstraint(Sketcher.Constraint("DistanceX", -1, 1, 40, 3, Q("7.84375 in")))
sketch2.addConstraint(Sketcher.Constraint("DistanceY", -1, 1, 48, 3, Q("1.71875 in")))
sketch2.addConstraint(Sketcher.Constraint("DistanceY", -1, 1, 0, 2, Q("1.9375 in")))
sketch2.addConstraint(Sketcher.Constraint("DistanceY", 16, 2, -1, 1, Q("7.625 in")))
sketch2.addConstraint(Sketcher.Constraint("DistanceY", -1, 1, 19, 2, Q("1.8125 in")))
sketch2.addConstraint(Sketcher.Constraint("DistanceX", -1, 1, 22, 2, Q("7.9375 in")))
sketch2.addConstraint(Sketcher.Constraint("DistanceX", -1, 1, 37, 2, Q("7.625 in")))
sketch2.addConstraint(Sketcher.Constraint("Radius", 5, 7.695654))
sketch2.addConstraint(Sketcher.Constraint("Radius", 18, 10.674998))
sketch2.addConstraint(Sketcher.Constraint("DistanceX", 17, 2, 17, 1, 7.946469))
sketch2.addConstraint(Sketcher.Constraint("DistanceX", 20, 1, 20, 2, 189.075009))
sketch2.addConstraint(Sketcher.Constraint("DistanceY", 4, 2, 4, 1, 2.608148))
sketch2.addConstraint(Sketcher.Constraint("DistanceX", 15, 1, 15, 2, 18.174995))
sketch2.addConstraint(Sketcher.Constraint("DistanceX", 12, 3, -1, 1, 22.306255))
sketch2.addConstraint(Sketcher.Constraint("DistanceY", 13, 3, -1, 1, 177.881255))
sketch2.addConstraint(Sketcher.Constraint("DistanceX", -1, 1, 33, 3, 177.881255))
sketch2.addConstraint(Sketcher.Constraint("DistanceY", -1, 1, 41, 3, 22.306255))
pad2 = doc.addObject("PartDesign::Pad", "Pad001")
body.addObject(pad2)
pad2.Profile = sketch2
pad2.Length = Q("2 in")

# Sketch on XY plane
sketch3 = doc.addObject("Sketcher::SketchObject", "Sketch002")
body.addObject(sketch3)
sketch3.AttachmentSupport = (doc.XY_Plane, [""])
sketch3.MapMode = "FlatFace"
sketch3.addGeometry(Part.Circle(App.Vector(-43.65625, 22.306255, 0), App.Vector(0, 0, 1), 3.96875), False)
sketch3.addGeometry(Part.Circle(App.Vector(-22.306255, 43.65625, 0), App.Vector(0, 0, 1), 3.96875), False)
sketch3.addGeometry(Part.Circle(App.Vector(-43.65625, -177.881255, 0), App.Vector(0, 0, 1), 3.96875), False)
sketch3.addGeometry(Part.Circle(App.Vector(-22.306255, -199.23125, 0), App.Vector(0, 0, 1), 3.96875), False)
sketch3.addGeometry(Part.Circle(App.Vector(199.23125, -177.881255, 0), App.Vector(0, 0, 1), 3.96875), False)
sketch3.addGeometry(Part.Circle(App.Vector(177.881255, -199.23125, 0), App.Vector(0, 0, 1), 3.96875), False)
sketch3.addGeometry(Part.Circle(App.Vector(177.881255, 43.65625, 0), App.Vector(0, 0, 1), 3.96875), False)
sketch3.addGeometry(Part.Circle(App.Vector(199.23125, 22.306255, 0), App.Vector(0, 0, 1), 3.96875), False)
sketch3.addConstraint(Sketcher.Constraint("Equal", 0, 1))
sketch3.addConstraint(Sketcher.Constraint("Equal", 1, 2))
sketch3.addConstraint(Sketcher.Constraint("Equal", 2, 3))
sketch3.addConstraint(Sketcher.Constraint("Equal", 3, 4))
sketch3.addConstraint(Sketcher.Constraint("Equal", 4, 5))
sketch3.addConstraint(Sketcher.Constraint("Equal", 5, 6))
sketch3.addConstraint(Sketcher.Constraint("Equal", 6, 7))
sketch3.addConstraint(Sketcher.Constraint("Horizontal", 2, 3, 4, 3))
sketch3.addConstraint(Sketcher.Constraint("Horizontal", 3, 3, 5, 3))
sketch3.addConstraint(Sketcher.Constraint("Horizontal", 1, 3, 6, 3))
sketch3.addConstraint(Sketcher.Constraint("Horizontal", 0, 3, 7, 3))
sketch3.addConstraint(Sketcher.Constraint("Vertical", 0, 3, 2, 3))
sketch3.addConstraint(Sketcher.Constraint("Vertical", 1, 3, 3, 3))
sketch3.addConstraint(Sketcher.Constraint("Vertical", 5, 3, 6, 3))
sketch3.addConstraint(Sketcher.Constraint("Vertical", 4, 3, 7, 3))
sketch3.addConstraint(Sketcher.Constraint("Diameter", 0, Q("0.3125 in")))
sketch3.addConstraint(Sketcher.Constraint("DistanceX", 0, 3, -1, 1, Q("1.71875 in")))
sketch3.addConstraint(Sketcher.Constraint("DistanceY", -1, 1, 1, 3, Q("1.71875 in")))
sketch3.addConstraint(Sketcher.Constraint("DistanceY", 3, 3, -1, 1, Q("7.84375 in")))
sketch3.addConstraint(Sketcher.Constraint("DistanceX", -1, 1, 4, 3, Q("7.84375 in")))
sketch3.addConstraint(Sketcher.Constraint("DistanceY", 2, 3, 0, 3, 200.187509))
sketch3.addConstraint(Sketcher.Constraint("DistanceX", 3, 3, 5, 3, 200.187509))
sketch3.addConstraint(Sketcher.Constraint("DistanceY", -1, 1, 0, 3, 22.306255))
sketch3.addConstraint(Sketcher.Constraint("DistanceX", 1, 3, -1, 1, 22.306255))
pocket1 = doc.addObject("PartDesign::Pocket", "Pocket")
body.addObject(pocket1)
pocket1.Profile = sketch3
pocket1.Length = Q("1 in")
pocket1.Reversed = True
doc.recompute()

fillet = doc.addObject("PartDesign::Fillet", "Fillet")
body.addObject(fillet)
fillet.Base = (pocket1, edges_at(pocket1, [
    (204.787, 49.212, 26.194),
    (204.787, -204.787, 26.194),
    (-49.212, -204.787, 26.194),
    (-49.212, 49.212, 26.194),
]))
fillet.Radius = 10.674998

# Sketch on XY plane
sketch4 = doc.addObject("Sketcher::SketchObject", "Sketch003")
body.addObject(sketch4)
sketch4.AttachmentSupport = (doc.XY_Plane, [""])
sketch4.MapMode = "FlatFace"
sketch4.AttachmentOffset = App.Placement(App.Vector(0, 0, 2.0625 * 25.4), App.Rotation())
sketch4.addGeometry(Part.LineSegment(App.Vector(75.177499, -211.916302, 0), App.Vector(80.397501, -211.916302, 0)), False)
sketch4.addGeometry(Part.LineSegment(App.Vector(80.397501, -211.916302, 0), App.Vector(83.007501, -207.395648, 0)), False)
sketch4.addGeometry(Part.LineSegment(App.Vector(83.007501, -207.395648, 0), App.Vector(80.397501, -202.874994, 0)), False)
sketch4.addGeometry(Part.LineSegment(App.Vector(80.397501, -202.874994, 0), App.Vector(75.177499, -202.874994, 0)), False)
sketch4.addGeometry(Part.LineSegment(App.Vector(75.177499, -202.874994, 0), App.Vector(72.567499, -207.395648, 0)), False)
sketch4.addGeometry(Part.LineSegment(App.Vector(72.567499, -207.395648, 0), App.Vector(75.177499, -211.916302, 0)), False)
sketch4.addConstraint(Sketcher.Constraint("Coincident", 0, 2, 1, 1))
sketch4.addConstraint(Sketcher.Constraint("Coincident", 1, 2, 2, 1))
sketch4.addConstraint(Sketcher.Constraint("Coincident", 2, 2, 3, 1))
sketch4.addConstraint(Sketcher.Constraint("Coincident", 3, 2, 4, 1))
sketch4.addConstraint(Sketcher.Constraint("Coincident", 4, 2, 5, 1))
sketch4.addConstraint(Sketcher.Constraint("Coincident", 5, 2, 0, 1))
sketch4.addConstraint(Sketcher.Constraint("Horizontal", 0))
sketch4.addConstraint(Sketcher.Constraint("Horizontal", 3))
sketch4.addConstraint(Sketcher.Constraint("Parallel", 1, 4))
sketch4.addConstraint(Sketcher.Constraint("Parallel", 2, 5))
sketch4.addConstraint(Sketcher.Constraint("Horizontal", 1, 2, 4, 2))
sketch4.addConstraint(Sketcher.Constraint("Vertical", 0, 2, 2, 2))
sketch4.addConstraint(Sketcher.Constraint("Vertical", 3, 2, 5, 2))
sketch4.addConstraint(Sketcher.Constraint("Angle", 1, Q("60 deg")))
sketch4.addConstraint(Sketcher.Constraint("DistanceX", 0, 1, 0, 2, 5.220001))
sketch4.addConstraint(Sketcher.Constraint("Distance", 1, 5.220001))
sketch4.addConstraint(Sketcher.Constraint("DistanceX", -1, 1, 0, 2, 80.397501))
sketch4.addConstraint(Sketcher.Constraint("DistanceY", 1, 2, -1, 1, 207.395648))
pocket2 = doc.addObject("PartDesign::Pocket", "Pocket001")
body.addObject(pocket2)
pocket2.Profile = sketch4
pocket2.Length = Q("0.125 in")

# Sketch on XY plane
sketch5 = doc.addObject("Sketcher::SketchObject", "Sketch004")
body.addObject(sketch5)
sketch5.AttachmentSupport = (doc.XY_Plane, [""])
sketch5.MapMode = "FlatFace"
sketch5.addGeometry(Part.Circle(App.Vector(77.7875, -207.395648, 0), App.Vector(0, 0, 1), 4.96412), False)
sketch5.addConstraint(Sketcher.Constraint("Diameter", 0, 9.92824))
sketch5.addConstraint(Sketcher.Constraint("DistanceX", -1, 1, 0, 3, Q("3.0625 in")))
sketch5.addConstraint(Sketcher.Constraint("DistanceY", 0, 3, -1, 1, 207.395648))
pocket3 = doc.addObject("PartDesign::Pocket", "Pocket002")
body.addObject(pocket3)
pocket3.Profile = sketch5
pocket3.Length = Q("1 in")
pocket3.Reversed = True

doc.recompute()
